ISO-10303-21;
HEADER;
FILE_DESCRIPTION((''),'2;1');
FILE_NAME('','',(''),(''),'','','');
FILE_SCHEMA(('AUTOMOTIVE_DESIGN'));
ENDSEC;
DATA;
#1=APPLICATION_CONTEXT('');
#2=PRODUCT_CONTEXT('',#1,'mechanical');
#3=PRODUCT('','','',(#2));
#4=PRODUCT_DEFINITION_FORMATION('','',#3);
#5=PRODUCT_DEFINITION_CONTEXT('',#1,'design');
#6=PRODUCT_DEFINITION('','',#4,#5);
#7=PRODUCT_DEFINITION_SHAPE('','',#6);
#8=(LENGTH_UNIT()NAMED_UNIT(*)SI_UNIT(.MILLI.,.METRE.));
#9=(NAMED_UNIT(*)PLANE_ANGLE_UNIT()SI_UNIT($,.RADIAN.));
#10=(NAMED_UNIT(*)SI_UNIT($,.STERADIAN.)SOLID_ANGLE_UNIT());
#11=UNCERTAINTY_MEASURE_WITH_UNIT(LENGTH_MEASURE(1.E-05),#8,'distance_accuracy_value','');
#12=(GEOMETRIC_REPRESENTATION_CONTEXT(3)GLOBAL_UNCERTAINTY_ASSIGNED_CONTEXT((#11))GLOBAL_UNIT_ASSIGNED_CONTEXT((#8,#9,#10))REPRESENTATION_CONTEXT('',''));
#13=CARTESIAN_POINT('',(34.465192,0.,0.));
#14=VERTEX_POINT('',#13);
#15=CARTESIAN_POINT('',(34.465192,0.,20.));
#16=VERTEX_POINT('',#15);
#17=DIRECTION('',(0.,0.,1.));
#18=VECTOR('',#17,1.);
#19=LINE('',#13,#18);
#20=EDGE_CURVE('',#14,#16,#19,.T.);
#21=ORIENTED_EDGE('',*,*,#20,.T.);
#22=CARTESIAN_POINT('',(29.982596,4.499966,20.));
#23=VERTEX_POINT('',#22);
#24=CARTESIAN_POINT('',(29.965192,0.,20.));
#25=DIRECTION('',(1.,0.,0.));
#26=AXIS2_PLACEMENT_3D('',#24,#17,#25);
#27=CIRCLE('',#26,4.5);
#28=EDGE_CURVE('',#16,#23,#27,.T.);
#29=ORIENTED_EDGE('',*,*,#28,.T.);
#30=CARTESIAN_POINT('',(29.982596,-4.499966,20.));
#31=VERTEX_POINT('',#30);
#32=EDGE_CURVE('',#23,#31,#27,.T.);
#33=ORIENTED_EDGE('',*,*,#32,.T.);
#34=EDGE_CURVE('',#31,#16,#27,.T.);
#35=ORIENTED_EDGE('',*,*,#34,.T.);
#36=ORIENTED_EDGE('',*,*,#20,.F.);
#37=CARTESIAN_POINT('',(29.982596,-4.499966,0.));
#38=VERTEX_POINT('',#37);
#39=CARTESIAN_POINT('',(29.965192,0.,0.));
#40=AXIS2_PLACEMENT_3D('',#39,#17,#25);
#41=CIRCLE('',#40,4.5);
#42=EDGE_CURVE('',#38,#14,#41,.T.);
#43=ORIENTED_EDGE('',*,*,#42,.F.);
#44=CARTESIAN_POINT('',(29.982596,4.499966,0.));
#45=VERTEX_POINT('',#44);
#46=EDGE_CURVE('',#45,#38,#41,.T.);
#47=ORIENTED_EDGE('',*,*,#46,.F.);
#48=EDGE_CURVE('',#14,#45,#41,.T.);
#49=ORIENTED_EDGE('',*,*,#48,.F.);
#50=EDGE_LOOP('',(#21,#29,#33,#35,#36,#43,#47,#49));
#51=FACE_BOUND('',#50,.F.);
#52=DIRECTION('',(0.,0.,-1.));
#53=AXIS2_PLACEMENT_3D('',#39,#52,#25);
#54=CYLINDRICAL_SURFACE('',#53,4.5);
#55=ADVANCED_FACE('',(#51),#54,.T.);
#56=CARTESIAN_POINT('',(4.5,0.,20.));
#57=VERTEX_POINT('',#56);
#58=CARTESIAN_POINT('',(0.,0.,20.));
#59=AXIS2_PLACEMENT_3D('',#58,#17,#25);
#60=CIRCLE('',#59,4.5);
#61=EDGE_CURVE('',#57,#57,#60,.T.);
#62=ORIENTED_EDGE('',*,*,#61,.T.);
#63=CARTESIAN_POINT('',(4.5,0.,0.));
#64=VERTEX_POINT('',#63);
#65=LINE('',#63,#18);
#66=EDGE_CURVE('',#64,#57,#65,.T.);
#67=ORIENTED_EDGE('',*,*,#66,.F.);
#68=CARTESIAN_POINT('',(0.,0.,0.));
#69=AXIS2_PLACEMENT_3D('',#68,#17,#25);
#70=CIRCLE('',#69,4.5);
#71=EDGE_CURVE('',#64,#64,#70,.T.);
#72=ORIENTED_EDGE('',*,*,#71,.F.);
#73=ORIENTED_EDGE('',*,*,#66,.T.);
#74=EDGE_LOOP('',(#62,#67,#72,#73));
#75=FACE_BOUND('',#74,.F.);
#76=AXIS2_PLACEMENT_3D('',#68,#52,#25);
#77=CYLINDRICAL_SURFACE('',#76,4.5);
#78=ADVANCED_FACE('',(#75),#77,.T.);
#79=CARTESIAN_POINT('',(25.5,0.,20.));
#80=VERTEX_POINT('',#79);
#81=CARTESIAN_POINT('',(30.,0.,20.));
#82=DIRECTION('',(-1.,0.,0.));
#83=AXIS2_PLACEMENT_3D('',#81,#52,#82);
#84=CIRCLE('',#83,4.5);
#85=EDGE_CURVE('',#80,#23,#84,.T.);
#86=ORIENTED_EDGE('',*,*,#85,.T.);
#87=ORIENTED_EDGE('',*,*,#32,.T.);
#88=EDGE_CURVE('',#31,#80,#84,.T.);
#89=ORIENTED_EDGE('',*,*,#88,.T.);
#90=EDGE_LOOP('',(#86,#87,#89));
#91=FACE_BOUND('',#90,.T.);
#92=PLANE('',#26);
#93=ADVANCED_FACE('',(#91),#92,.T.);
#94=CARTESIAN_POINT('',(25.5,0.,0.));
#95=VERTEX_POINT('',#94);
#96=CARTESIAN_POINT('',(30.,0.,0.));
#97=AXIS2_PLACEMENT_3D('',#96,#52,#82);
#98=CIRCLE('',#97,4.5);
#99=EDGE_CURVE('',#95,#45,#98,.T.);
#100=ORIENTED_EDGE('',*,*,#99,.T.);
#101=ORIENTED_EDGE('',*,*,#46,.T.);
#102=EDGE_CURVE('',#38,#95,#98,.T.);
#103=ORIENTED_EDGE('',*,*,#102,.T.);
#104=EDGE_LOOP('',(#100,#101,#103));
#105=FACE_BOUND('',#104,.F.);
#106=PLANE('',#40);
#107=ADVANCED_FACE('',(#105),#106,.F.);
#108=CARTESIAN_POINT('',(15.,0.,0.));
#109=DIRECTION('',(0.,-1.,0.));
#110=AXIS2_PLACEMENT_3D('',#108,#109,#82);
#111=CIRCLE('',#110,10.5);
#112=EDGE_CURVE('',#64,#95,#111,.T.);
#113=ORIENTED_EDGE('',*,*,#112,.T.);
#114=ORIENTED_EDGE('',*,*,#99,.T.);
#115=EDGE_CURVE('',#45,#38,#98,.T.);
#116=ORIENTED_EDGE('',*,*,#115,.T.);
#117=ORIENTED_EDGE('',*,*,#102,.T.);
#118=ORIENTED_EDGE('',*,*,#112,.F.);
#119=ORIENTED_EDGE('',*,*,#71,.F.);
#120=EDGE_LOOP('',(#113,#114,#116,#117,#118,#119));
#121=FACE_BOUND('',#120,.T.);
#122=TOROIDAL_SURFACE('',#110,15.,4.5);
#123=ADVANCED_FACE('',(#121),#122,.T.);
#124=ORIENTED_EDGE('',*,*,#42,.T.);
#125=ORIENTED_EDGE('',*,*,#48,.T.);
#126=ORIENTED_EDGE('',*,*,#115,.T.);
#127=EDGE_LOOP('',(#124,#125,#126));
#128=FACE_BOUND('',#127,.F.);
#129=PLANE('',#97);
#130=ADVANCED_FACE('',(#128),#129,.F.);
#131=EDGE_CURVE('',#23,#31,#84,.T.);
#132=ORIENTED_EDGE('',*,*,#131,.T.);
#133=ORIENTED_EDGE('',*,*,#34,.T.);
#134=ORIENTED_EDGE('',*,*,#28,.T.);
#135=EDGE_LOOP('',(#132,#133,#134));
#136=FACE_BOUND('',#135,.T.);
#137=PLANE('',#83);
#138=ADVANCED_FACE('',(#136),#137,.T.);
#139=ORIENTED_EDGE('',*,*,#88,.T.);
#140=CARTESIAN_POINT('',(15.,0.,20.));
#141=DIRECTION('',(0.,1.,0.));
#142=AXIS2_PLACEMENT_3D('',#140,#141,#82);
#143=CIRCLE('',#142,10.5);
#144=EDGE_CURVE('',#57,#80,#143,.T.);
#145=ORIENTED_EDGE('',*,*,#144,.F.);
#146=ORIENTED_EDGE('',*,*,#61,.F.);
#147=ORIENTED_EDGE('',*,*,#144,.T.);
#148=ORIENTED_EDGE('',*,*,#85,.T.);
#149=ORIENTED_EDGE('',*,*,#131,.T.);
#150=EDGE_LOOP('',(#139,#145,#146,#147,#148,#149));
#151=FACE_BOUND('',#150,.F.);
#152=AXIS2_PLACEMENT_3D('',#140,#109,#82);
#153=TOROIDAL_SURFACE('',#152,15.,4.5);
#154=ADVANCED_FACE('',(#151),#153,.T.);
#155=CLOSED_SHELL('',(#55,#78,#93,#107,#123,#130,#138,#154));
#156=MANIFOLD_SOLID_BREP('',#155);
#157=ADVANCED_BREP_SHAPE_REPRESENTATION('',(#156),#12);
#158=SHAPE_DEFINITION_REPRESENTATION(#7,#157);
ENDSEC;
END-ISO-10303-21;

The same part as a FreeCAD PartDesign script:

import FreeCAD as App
import Part
import Sketcher
Q = App.Units.Quantity

doc = App.newDocument("Part")
body = doc.addObject("PartDesign::Body", "Body")

# Sketch on XY plane
sketch1 = body.newObject("Sketcher::SketchObject", "Sketch")
sketch1.AttachmentSupport = (doc.getObject("XY_Plane"), [""])
sketch1.MapMode = "FlatFace"
sketch1.addGeometry(Part.Circle(App.Vector(0, 0, 0), App.Vector(0, 0, 1), 4.5), False)
sketch1.addGeometry(Part.LineSegment(App.Vector(15, 0, 0), App.Vector(15, -10, 0)), True)  # axis
sketch1.addConstraint([
    Sketcher.Constraint("Vertical", 1),
    Sketcher.Constraint("Coincident", 0, 3, -1, 1),
    Sketcher.Constraint("PointOnObject", 1, 1, -1),
    Sketcher.Constraint("Diameter", 0, Q("9 mm")),
    Sketcher.Constraint("DistanceY", 1, 2, 1, 1, Q("10 mm")),
    Sketcher.Constraint("DistanceX", -1, 1, 1, 1, Q("15 mm")),
])
revolution = body.newObject("PartDesign::Revolution", "Revolution")
revolution.Profile = sketch1
revolution.ReferenceAxis = (sketch1, ["Axis0"])
revolution.Angle = 180

# Sketch on XY plane
sketch2 = body.newObject("Sketcher::SketchObject", "Sketch001")
sketch2.AttachmentSupport = (doc.getObject("XY_Plane"), [""])
sketch2.MapMode = "FlatFace"
sketch2.addGeometry([
    Part.Circle(App.Vector(30, 0, 0), App.Vector(0, 0, 1), 4.5),
    Part.Circle(App.Vector(0, 0, 0), App.Vector(0, 0, 1), 4.5),
], False)
sketch2.addConstraint([
    Sketcher.Constraint("Coincident", 1, 3, -1, 1),
    Sketcher.Constraint("Equal", 0, 1),
    Sketcher.Constraint("PointOnObject", 0, 3, -1),
    Sketcher.Constraint("Diameter", 0, Q("9 mm")),
    Sketcher.Constraint("DistanceX", -1, 1, 0, 3, Q("29.965192 mm")),
])
pad1 = body.newObject("PartDesign::Pad", "Pad")
pad1.Profile = sketch2
pad1.Length = 20

# Sketch on XY plane
sketch3 = body.newObject("Sketcher::SketchObject", "Sketch002")
sketch3.AttachmentSupport = (doc.getObject("XY_Plane"), [""])
sketch3.MapMode = "FlatFace"
sketch3.AttachmentOffset = App.Placement(App.Vector(0, 0, 20), App.Rotation())
sketch3.addGeometry(Part.Circle(App.Vector(0, 0, 0), App.Vector(0, 0, 1), 4.5), False)
sketch3.addGeometry(Part.LineSegment(App.Vector(15, 0, 0), App.Vector(15, -10, 0)), True)  # axis
sketch3.addConstraint([
    Sketcher.Constraint("Vertical", 1),
    Sketcher.Constraint("Coincident", 0, 3, -1, 1),
    Sketcher.Constraint("PointOnObject", 1, 1, -1),
    Sketcher.Constraint("Diameter", 0, Q("9 mm")),
    Sketcher.Constraint("DistanceY", 1, 2, 1, 1, Q("10 mm")),
    Sketcher.Constraint("DistanceX", -1, 1, 1, 1, Q("15 mm")),
])
revolution2 = body.newObject("PartDesign::Revolution", "Revolution001")
revolution2.Profile = sketch3
revolution2.ReferenceAxis = (sketch3, ["Axis0"])
revolution2.Angle = 180
revolution2.Reversed = True

doc.recompute()
